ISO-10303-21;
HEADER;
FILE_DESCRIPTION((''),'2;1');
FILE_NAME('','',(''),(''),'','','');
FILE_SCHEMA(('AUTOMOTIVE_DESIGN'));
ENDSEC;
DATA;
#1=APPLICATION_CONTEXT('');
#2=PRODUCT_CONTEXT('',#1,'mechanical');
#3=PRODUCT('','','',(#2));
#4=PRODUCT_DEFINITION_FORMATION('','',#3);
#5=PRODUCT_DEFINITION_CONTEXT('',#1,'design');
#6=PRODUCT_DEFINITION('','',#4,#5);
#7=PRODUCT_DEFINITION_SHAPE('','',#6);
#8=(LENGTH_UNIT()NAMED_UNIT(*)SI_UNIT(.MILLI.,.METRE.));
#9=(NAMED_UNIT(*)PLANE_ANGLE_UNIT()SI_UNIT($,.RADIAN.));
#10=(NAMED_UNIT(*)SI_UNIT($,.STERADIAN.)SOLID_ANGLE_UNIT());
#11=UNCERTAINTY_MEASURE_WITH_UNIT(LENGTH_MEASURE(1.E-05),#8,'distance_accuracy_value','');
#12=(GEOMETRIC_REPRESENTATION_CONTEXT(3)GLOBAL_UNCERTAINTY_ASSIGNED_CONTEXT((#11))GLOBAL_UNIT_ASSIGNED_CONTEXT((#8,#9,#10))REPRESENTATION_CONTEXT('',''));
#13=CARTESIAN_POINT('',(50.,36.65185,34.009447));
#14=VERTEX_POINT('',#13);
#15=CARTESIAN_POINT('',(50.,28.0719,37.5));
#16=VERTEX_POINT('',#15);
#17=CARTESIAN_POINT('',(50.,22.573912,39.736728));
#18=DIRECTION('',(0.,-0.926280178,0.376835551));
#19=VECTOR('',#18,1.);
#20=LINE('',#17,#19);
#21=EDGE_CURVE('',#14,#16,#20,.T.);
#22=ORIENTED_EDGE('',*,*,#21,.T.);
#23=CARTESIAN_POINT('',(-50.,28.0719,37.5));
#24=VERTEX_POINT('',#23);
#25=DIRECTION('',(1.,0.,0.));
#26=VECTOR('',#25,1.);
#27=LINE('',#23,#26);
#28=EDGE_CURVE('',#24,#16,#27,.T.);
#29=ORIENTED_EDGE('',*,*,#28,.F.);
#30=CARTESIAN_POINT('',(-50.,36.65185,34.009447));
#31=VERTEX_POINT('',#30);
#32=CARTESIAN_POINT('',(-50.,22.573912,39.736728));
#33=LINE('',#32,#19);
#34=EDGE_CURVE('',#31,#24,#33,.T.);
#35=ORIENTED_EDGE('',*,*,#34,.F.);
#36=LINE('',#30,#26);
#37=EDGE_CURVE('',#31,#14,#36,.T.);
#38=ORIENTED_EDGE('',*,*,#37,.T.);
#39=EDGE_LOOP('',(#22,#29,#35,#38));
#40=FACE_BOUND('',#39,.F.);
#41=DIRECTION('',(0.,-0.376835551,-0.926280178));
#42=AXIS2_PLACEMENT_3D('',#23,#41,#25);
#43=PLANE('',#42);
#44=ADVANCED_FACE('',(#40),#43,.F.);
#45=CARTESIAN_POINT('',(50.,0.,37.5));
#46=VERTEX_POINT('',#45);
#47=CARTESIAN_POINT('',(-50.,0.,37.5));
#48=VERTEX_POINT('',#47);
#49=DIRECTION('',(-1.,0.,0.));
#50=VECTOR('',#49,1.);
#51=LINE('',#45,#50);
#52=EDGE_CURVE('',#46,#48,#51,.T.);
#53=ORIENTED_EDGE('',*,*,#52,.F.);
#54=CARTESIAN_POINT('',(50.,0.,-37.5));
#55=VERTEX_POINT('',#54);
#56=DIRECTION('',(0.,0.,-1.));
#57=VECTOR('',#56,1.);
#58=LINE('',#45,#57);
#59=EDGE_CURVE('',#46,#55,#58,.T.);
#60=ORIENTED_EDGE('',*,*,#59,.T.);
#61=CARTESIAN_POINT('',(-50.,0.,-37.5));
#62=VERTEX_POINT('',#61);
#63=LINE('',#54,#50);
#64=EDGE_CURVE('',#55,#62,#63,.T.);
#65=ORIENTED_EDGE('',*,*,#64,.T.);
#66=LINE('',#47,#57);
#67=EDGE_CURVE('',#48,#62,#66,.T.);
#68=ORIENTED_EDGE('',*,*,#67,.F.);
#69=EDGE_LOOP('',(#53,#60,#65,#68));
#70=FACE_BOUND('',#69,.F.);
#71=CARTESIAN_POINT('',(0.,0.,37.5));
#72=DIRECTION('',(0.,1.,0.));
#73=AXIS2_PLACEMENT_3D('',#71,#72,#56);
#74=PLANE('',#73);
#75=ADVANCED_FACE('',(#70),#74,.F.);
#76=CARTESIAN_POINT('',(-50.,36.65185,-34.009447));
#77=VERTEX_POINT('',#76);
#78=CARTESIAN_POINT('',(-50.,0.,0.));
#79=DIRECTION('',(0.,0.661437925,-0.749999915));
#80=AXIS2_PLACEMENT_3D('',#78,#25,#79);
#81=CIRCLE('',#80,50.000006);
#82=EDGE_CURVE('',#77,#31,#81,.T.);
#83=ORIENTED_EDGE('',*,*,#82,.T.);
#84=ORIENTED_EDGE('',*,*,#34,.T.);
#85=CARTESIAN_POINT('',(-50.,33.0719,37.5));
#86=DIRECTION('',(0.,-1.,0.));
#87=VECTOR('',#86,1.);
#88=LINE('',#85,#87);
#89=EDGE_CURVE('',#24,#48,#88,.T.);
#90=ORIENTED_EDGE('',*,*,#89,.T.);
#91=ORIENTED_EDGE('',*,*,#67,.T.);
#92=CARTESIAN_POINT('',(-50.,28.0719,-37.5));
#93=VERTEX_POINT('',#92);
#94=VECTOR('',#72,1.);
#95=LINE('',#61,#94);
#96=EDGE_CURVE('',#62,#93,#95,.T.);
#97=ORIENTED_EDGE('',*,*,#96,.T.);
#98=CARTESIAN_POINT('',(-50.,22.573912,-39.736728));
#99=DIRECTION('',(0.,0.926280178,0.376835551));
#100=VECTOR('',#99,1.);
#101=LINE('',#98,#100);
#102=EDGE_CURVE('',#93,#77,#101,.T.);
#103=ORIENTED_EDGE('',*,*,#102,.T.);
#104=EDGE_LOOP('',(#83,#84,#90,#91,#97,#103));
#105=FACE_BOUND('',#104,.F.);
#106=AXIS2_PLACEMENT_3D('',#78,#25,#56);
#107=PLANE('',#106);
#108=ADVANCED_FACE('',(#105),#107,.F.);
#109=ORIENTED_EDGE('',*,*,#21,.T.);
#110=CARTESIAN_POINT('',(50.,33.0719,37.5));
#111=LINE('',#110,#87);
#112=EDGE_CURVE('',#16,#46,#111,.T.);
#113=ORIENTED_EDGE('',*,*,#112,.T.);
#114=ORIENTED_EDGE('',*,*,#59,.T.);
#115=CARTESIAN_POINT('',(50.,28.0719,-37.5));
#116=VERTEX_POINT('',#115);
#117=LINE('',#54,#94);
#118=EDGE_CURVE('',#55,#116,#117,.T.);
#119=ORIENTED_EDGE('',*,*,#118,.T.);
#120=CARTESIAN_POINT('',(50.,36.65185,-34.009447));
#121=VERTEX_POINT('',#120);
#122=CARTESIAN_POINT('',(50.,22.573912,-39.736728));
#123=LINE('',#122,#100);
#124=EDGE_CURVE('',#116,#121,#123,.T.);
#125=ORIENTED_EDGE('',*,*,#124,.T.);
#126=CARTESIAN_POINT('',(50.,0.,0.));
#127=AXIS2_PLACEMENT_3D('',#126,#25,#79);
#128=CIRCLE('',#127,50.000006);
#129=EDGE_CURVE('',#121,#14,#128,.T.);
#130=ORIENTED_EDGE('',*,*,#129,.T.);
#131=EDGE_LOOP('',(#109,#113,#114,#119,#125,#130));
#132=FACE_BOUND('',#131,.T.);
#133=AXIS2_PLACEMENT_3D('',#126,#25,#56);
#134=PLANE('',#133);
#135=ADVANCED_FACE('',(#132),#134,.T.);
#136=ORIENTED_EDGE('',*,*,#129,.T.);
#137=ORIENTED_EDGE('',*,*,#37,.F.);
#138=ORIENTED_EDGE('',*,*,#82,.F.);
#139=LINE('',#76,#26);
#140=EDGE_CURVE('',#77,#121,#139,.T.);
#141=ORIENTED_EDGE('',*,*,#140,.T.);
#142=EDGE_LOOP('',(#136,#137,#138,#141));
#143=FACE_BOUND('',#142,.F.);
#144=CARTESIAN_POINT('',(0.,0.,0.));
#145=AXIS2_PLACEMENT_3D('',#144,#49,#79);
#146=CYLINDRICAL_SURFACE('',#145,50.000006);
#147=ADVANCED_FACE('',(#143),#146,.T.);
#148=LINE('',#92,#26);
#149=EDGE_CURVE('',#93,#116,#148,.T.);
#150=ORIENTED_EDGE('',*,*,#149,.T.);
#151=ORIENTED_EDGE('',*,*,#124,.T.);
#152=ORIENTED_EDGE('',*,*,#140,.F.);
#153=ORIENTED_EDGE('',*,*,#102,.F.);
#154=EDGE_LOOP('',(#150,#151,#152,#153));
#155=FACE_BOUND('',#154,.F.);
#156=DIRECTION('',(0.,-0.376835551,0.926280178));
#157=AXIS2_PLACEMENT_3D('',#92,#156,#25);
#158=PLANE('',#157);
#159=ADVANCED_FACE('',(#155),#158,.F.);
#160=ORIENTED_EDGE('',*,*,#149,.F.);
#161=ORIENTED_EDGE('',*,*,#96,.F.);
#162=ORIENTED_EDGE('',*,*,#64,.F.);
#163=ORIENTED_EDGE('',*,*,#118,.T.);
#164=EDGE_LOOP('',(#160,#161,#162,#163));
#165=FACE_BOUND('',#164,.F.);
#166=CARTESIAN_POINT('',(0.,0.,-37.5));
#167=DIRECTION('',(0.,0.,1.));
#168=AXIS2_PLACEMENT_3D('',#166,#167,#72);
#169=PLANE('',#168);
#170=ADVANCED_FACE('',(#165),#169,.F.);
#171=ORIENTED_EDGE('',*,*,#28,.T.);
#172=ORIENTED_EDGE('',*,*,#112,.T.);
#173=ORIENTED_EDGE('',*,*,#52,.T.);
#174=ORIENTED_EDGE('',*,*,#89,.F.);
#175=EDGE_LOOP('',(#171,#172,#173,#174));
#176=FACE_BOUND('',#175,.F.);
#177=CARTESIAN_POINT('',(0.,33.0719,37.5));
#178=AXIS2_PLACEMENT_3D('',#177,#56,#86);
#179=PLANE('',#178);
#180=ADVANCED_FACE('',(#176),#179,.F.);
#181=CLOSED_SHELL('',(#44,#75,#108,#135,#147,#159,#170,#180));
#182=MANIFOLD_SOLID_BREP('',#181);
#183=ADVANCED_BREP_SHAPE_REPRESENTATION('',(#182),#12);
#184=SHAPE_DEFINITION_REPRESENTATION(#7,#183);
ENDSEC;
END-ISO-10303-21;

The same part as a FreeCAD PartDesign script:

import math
import FreeCAD as App
import Part
import Sketcher
Q = App.Units.Quantity


def edges_at(feature, points):
    """Names of the edges that pass closest to the given points."""
    edges = feature.Shape.Edges
    near = lambda p: min(range(len(edges)), key=lambda i: edges[i].distToShape(Part.Vertex(*p))[0])
    return sorted({f"Edge{near(p) + 1}" for p in points})

doc = App.newDocument("Part")
body = doc.addObject("PartDesign::Body", "Body")

sketch1 = doc.addObject("Sketcher::SketchObject", "Sketch")
body.addObject(sketch1)
sketch1.AttachmentSupport = (doc.YZ_Plane, [""])
sketch1.MapMode = "FlatFace"
sketch1.addGeometry([
    Part.LineSegment(App.Vector(0, -38, 0), App.Vector(33, -38, 0)),
    Part.ArcOfCircle(Part.Circle(App.Vector(0, 0, 0), App.Vector(0, 0, 1), 50), math.radians(-49), math.radians(49)),
    Part.LineSegment(App.Vector(33, 38, 0), App.Vector(0, 38, 0)),
    Part.LineSegment(App.Vector(0, 38, 0), App.Vector(0, -38, 0)),
], False)
sketch1.addConstraint([
    Sketcher.Constraint("Coincident", 0, 2, 1, 1),
    Sketcher.Constraint("Coincident", 1, 2, 2, 1),
    Sketcher.Constraint("Coincident", 2, 2, 3, 1),
    Sketcher.Constraint("Coincident", 3, 2, 0, 1),
    Sketcher.Constraint("Horizontal", 0),
    Sketcher.Constraint("Horizontal", 2),
    Sketcher.Constraint("Vertical", 3),
    Sketcher.Constraint("Coincident", 1, 3, -1, 1),
    Sketcher.Constraint("Symmetric", 2, 2, 3, 2, -1, 1),
    Sketcher.Constraint("Radius", 1, Q("50 mm")),
    Sketcher.Constraint("DistanceY", 3, 2, 3, 1, Q("75 mm")),
])
pad1 = doc.addObject("PartDesign::Pad", "Pad")
body.addObject(pad1)
pad1.Profile = sketch1
pad1.Length = 100
pad1.Midplane = True
doc.recompute()

chamfer = doc.addObject("PartDesign::Chamfer", "Chamfer")
body.addObject(chamfer)
chamfer.Base = (pad1, edges_at(pad1, [(0, 33.072, 37.5), (0, 33.072, -37.5)]))
chamfer.Size = 5

doc.recompute()
